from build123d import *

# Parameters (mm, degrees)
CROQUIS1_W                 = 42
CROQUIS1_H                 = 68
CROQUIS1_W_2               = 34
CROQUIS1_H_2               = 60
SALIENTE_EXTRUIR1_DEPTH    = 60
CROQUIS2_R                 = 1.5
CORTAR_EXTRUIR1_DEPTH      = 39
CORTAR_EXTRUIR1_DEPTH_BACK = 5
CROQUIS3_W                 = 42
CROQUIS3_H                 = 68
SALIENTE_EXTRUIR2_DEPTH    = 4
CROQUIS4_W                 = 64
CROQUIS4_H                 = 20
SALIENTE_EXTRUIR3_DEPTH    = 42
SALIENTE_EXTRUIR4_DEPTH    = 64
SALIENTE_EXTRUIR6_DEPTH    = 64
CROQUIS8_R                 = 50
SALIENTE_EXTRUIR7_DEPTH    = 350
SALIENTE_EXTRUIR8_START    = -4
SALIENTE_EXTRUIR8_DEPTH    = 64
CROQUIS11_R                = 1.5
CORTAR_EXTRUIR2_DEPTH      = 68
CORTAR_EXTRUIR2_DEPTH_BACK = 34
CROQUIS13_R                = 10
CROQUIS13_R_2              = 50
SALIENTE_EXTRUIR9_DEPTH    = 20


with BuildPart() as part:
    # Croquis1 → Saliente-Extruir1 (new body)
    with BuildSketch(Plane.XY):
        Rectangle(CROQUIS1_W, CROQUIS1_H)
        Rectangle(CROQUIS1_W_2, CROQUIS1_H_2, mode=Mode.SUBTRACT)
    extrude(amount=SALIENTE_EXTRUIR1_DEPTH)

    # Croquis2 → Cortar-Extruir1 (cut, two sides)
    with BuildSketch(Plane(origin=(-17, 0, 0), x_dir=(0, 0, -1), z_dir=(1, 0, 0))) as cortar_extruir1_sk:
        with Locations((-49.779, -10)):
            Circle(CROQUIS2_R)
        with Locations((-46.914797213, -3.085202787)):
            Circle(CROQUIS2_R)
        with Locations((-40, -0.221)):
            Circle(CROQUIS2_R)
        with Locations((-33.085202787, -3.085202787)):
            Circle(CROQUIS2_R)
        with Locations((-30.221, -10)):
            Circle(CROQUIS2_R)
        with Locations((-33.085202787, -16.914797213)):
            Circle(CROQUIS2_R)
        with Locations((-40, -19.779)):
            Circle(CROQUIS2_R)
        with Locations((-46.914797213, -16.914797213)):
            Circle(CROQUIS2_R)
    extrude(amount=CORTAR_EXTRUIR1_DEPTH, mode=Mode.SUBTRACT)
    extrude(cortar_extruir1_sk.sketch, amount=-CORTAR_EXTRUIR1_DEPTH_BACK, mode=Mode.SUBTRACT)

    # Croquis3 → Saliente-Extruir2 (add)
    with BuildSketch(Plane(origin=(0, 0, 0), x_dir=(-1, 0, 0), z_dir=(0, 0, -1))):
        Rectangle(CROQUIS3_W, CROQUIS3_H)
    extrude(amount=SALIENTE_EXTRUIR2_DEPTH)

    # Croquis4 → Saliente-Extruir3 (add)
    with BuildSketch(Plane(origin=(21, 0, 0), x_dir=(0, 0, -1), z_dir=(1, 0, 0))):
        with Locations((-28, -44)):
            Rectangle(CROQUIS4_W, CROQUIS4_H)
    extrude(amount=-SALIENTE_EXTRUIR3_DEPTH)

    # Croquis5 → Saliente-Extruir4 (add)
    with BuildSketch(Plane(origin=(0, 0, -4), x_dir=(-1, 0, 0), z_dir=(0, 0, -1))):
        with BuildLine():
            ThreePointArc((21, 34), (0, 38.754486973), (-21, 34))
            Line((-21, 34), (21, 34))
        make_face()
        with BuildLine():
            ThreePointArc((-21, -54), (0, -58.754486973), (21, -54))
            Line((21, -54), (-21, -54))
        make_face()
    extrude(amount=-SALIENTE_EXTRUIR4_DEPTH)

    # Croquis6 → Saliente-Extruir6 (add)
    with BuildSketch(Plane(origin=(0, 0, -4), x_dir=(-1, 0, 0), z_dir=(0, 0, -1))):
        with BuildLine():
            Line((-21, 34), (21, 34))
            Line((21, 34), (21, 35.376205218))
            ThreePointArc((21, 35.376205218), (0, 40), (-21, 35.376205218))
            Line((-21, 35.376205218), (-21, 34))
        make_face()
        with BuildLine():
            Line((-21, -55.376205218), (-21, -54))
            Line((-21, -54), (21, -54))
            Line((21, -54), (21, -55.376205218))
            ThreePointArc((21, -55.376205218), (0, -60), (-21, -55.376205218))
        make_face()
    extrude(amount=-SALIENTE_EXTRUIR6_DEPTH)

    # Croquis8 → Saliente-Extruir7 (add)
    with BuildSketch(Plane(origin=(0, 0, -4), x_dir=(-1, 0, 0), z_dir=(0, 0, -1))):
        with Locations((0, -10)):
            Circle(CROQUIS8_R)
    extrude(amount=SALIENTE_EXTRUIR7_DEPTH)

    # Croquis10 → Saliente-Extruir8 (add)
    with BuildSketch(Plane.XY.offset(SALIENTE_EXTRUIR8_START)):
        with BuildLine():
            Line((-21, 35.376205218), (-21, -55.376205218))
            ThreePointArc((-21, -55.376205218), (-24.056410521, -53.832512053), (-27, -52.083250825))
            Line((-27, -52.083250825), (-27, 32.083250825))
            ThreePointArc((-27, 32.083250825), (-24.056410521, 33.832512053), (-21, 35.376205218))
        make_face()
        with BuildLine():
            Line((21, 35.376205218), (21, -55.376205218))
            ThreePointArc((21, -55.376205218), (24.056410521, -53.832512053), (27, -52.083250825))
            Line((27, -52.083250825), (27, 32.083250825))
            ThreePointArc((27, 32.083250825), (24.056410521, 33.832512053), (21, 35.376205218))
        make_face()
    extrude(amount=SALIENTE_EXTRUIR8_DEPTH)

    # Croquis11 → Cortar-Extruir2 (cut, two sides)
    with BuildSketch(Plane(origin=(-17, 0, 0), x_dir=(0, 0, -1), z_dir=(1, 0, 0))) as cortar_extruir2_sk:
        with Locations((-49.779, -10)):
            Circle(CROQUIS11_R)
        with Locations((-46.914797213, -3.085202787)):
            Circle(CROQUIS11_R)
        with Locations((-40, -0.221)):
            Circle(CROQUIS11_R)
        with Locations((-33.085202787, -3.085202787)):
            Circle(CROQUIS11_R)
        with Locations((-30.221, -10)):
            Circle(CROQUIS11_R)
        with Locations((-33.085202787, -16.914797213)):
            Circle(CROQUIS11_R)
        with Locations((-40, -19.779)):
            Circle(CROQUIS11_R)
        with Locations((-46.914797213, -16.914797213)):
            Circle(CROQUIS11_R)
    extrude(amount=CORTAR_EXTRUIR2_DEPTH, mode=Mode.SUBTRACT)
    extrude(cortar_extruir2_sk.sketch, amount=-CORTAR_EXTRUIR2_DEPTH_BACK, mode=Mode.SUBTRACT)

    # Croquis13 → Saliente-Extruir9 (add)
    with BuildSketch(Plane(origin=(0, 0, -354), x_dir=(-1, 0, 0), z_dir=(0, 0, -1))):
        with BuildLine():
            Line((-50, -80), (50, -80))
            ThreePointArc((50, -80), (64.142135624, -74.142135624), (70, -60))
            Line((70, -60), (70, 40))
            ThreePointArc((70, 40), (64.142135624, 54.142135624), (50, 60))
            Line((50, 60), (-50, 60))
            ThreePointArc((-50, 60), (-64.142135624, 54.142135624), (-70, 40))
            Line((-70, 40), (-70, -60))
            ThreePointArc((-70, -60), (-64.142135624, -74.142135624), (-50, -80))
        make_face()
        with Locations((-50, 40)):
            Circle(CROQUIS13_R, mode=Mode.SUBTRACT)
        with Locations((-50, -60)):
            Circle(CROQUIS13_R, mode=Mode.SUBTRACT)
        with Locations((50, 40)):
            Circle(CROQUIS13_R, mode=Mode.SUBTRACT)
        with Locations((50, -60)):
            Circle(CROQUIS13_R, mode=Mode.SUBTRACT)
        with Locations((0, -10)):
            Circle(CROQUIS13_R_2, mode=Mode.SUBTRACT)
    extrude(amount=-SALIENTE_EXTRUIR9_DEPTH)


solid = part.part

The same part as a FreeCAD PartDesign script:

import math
import FreeCAD as App
import Part
import Sketcher

V = App.Vector
Q = App.Units.Quantity


def add_polygon(sketch, points):
    """Adds a closed chain of lines whose ends are joined by coincident constraints."""
    first, n = sketch.GeometryCount, len(points)
    for a, b in zip(points, points[1:] + points[:1]):
        sketch.addGeometry(Part.LineSegment(App.Vector(*a, 0), App.Vector(*b, 0)), False)
    for i in range(n):
        sketch.addConstraint(Sketcher.Constraint("Coincident", first + i, 2, first + (i + 1) % n, 1))

doc = App.newDocument("Part")
body = doc.addObject("PartDesign::Body", "Body")

# Sketch on XY plane
sketch1 = body.newObject("Sketcher::SketchObject", "Sketch")
sketch1.AttachmentSupport = (doc.getObject("XY_Plane"), [""])
sketch1.MapMode = "FlatFace"
add_polygon(sketch1, [(-21, 34), (-21, -34), (21, -34), (21, 34)])  # lines 0-3
add_polygon(sketch1, [(17, -30), (-17, -30), (-17, 30), (17, 30)])  # lines 4-7
sketch1.addConstraint([
    Sketcher.Constraint("Vertical", 0),
    Sketcher.Constraint("Horizontal", 1),
    Sketcher.Constraint("Vertical", 2),
    Sketcher.Constraint("Horizontal", 3),
    Sketcher.Constraint("Horizontal", 4),
    Sketcher.Constraint("Vertical", 5),
    Sketcher.Constraint("Horizontal", 6),
    Sketcher.Constraint("Vertical", 7),
    Sketcher.Constraint("Symmetric", 0, 2, 2, 2, -1, 1),
    Sketcher.Constraint("Symmetric", 4, 2, 6, 2, -1, 1),
    Sketcher.Constraint("DistanceX", 1, 1, 1, 2, Q("42 mm")),
    Sketcher.Constraint("DistanceX", 4, 2, 4, 1, Q("34 mm")),
    Sketcher.Constraint("DistanceY", 0, 2, 0, 1, Q("68 mm")),
    Sketcher.Constraint("DistanceY", 5, 1, 5, 2, Q("60 mm")),
])
pad1 = body.newObject("PartDesign::Pad", "Pad")
pad1.Profile = sketch1
pad1.Length = 60

# Sketch on YZ plane
sketch2 = body.newObject("Sketcher::SketchObject", "Sketch001")
sketch2.AttachmentSupport = (doc.getObject("YZ_Plane"), [""])
sketch2.MapMode = "FlatFace"
sketch2.AttachmentOffset = App.Placement(V(0, 0, -17), App.Rotation())
sketch2.addGeometry([
    Part.Circle(V(-10, 49.8, 0), V(0, 0, 1), 1.5),  # 0
    Part.Circle(V(-3.1, 46.9, 0), V(0, 0, 1), 1.5),  # 1
    Part.Circle(V(-0.2, 40, 0), V(0, 0, 1), 1.5),  # 2
    Part.Circle(V(-3.1, 33.1, 0), V(0, 0, 1), 1.5),  # 3
    Part.Circle(V(-10, 30.2, 0), V(0, 0, 1), 1.5),  # 4
    Part.Circle(V(-16.9, 33.1, 0), V(0, 0, 1), 1.5),  # 5
    Part.Circle(V(-19.8, 40, 0), V(0, 0, 1), 1.5),  # 6
    Part.Circle(V(-16.9, 46.9, 0), V(0, 0, 1), 1.5),  # 7
], False)
sketch2.addConstraint([
    Sketcher.Constraint("Equal", 0, 1),
    Sketcher.Constraint("Equal", 1, 2),
    Sketcher.Constraint("Equal", 2, 3),
    Sketcher.Constraint("Equal", 3, 4),
    Sketcher.Constraint("Equal", 4, 5),
    Sketcher.Constraint("Equal", 5, 6),
    Sketcher.Constraint("Equal", 6, 7),
    Sketcher.Constraint("Horizontal", 3, 3, 5, 3),
    Sketcher.Constraint("Horizontal", 2, 3, 6, 3),
    Sketcher.Constraint("Horizontal", 1, 3, 7, 3),
    Sketcher.Constraint("Vertical", 1, 3, 3, 3),
    Sketcher.Constraint("Vertical", 0, 3, 4, 3),
    Sketcher.Constraint("Vertical", 5, 3, 7, 3),
    Sketcher.Constraint("Diameter", 0, Q("3 mm")),
    Sketcher.Constraint("DistanceX", 0, 3, -1, 1, Q("10 mm")),
    Sketcher.Constraint("DistanceY", -1, 1, 2, 3, Q("40 mm")),
    Sketcher.Constraint("DistanceY", -1, 1, 0, 3, Q("49.779 mm")),
    Sketcher.Constraint("DistanceX", 2, 3, -1, 1, Q("0.221 mm")),
    Sketcher.Constraint("DistanceY", -1, 1, 4, 3, Q("30.221 mm")),
    Sketcher.Constraint("DistanceX", 6, 3, -1, 1, Q("19.779 mm")),
    Sketcher.Constraint("DistanceX", 1, 3, -1, 1, Q("3.085203 mm")),
    Sketcher.Constraint("DistanceY", -1, 1, 1, 3, Q("46.914797 mm")),
    Sketcher.Constraint("DistanceY", -1, 1, 3, 3, Q("33.085203 mm")),
    Sketcher.Constraint("DistanceX", 5, 3, -1, 1, Q("16.914797 mm")),
])
pocket1 = body.newObject("PartDesign::Pocket", "Pocket")
pocket1.Profile = sketch2
pocket1.Type = "ThroughAll"
pocket1.Midplane = True

# Sketch on XY plane
sketch3 = body.newObject("Sketcher::SketchObject", "Sketch002")
sketch3.AttachmentSupport = (doc.getObject("XY_Plane"), [""])
sketch3.MapMode = "FlatFace"
add_polygon(sketch3, [(21, 34), (21, -34), (-21, -34), (-21, 34)])  # lines 0-3
sketch3.addConstraint([
    Sketcher.Constraint("Vertical", 0),
    Sketcher.Constraint("Horizontal", 1),
    Sketcher.Constraint("Vertical", 2),
    Sketcher.Constraint("Horizontal", 3),
    Sketcher.Constraint("Symmetric", 0, 2, 2, 2, -1, 1),
    Sketcher.Constraint("DistanceX", 1, 2, 1, 1, Q("42 mm")),
    Sketcher.Constraint("DistanceY", 0, 2, 0, 1, Q("68 mm")),
])
pad2 = body.newObject("PartDesign::Pad", "Pad001")
pad2.Profile = sketch3
pad2.Length = 4
pad2.Reversed = True

# Sketch on YZ plane
sketch4 = body.newObject("Sketcher::SketchObject", "Sketch003")
sketch4.AttachmentSupport = (doc.getObject("YZ_Plane"), [""])
sketch4.MapMode = "FlatFace"
sketch4.AttachmentOffset = App.Placement(V(0, 0, 21), App.Rotation())
add_polygon(sketch4, [(-34, 60), (-54, 60), (-54, -4), (-34, -4)])  # lines 0-3
sketch4.addConstraint([
    Sketcher.Constraint("Horizontal", 0),
    Sketcher.Constraint("Vertical", 1),
    Sketcher.Constraint("Horizontal", 2),
    Sketcher.Constraint("Vertical", 3),
    Sketcher.Constraint("DistanceX", 0, 2, 0, 1, Q("20 mm")),
    Sketcher.Constraint("DistanceY", 1, 2, 1, 1, Q("64 mm")),
    Sketcher.Constraint("DistanceX", 0, 2, -1, 1, Q("54 mm")),
    Sketcher.Constraint("DistanceY", -1, 1, 0, 2, Q("60 mm")),
])
pad3 = body.newObject("PartDesign::Pad", "Pad002")
pad3.Profile = sketch4
pad3.Length = 42
pad3.Reversed = True

# Sketch on XY plane
sketch5 = body.newObject("Sketcher::SketchObject", "Sketch004")
sketch5.AttachmentSupport = (doc.getObject("XY_Plane"), [""])
sketch5.MapMode = "FlatFace"
sketch5.AttachmentOffset = App.Placement(V(0, 0, -4), App.Rotation())
sketch5.addGeometry([
    Part.ArcOfCircle(Part.Circle(V(0, -10, 0), V(0, 0, 1), 49), math.radians(64), math.radians(116)),
    Part.LineSegment(V(21, 34, 0), V(-21, 34, 0)),
    Part.ArcOfCircle(Part.Circle(V(0, -10, 0), V(0, 0, 1), 49), math.radians(-116), math.radians(-64)),
    Part.LineSegment(V(-21, -54, 0), V(21, -54, 0)),
], False)
sketch5.addConstraint([
    Sketcher.Constraint("Coincident", 0, 1, 1, 1),
    Sketcher.Constraint("Coincident", 1, 2, 0, 2),
    Sketcher.Constraint("Coincident", 2, 1, 3, 1),
    Sketcher.Constraint("Coincident", 3, 2, 2, 2),
    Sketcher.Constraint("Horizontal", 1),
    Sketcher.Constraint("Horizontal", 3),
    Sketcher.Constraint("Coincident", 2, 3, 0, 3),
    Sketcher.Constraint("Equal", 0, 2),
    Sketcher.Constraint("PointOnObject", 0, 3, -2),
    Sketcher.Constraint("Vertical", 1, 2, 2, 1),
    Sketcher.Constraint("DistanceX", 1, 2, 1, 1, Q("42 mm")),
    Sketcher.Constraint("DistanceY", 0, 3, -1, 1, Q("10 mm")),
    Sketcher.Constraint("DistanceY", -1, 1, 0, 1, Q("34 mm")),
])
pad4 = body.newObject("PartDesign::Pad", "Pad003")
pad4.Profile = sketch5
pad4.Length = 64

# Sketch on XY plane
sketch6 = body.newObject("Sketcher::SketchObject", "Sketch005")
sketch6.AttachmentSupport = (doc.getObject("XY_Plane"), [""])
sketch6.MapMode = "FlatFace"
sketch6.AttachmentOffset = App.Placement(V(0, 0, -4), App.Rotation())
sketch6.addGeometry([
    Part.LineSegment(V(21, 34, 0), V(-21, 34, 0)),  # 0
    Part.LineSegment(V(-21, 34, 0), V(-21, 35.4, 0)),  # 1
    Part.ArcOfCircle(Part.Circle(V(0, -10, 0), V(0, 0, 1), 50), math.radians(65), math.radians(115)),  # 2
    Part.LineSegment(V(21, 35.4, 0), V(21, 34, 0)),  # 3
    Part.LineSegment(V(21, -54, 0), V(21, -55.4, 0)),  # 4
    Part.ArcOfCircle(Part.Circle(V(0, -10, 0), V(0, 0, 1), 50), math.radians(-115), math.radians(-65)),  # 5
    Part.LineSegment(V(-21, -55.4, 0), V(-21, -54, 0)),  # 6
    Part.LineSegment(V(-21, -54, 0), V(21, -54, 0)),  # 7
], False)
sketch6.addConstraint([
    Sketcher.Constraint("Coincident", 0, 2, 1, 1),
    Sketcher.Constraint("Coincident", 1, 2, 2, 2),
    Sketcher.Constraint("Coincident", 2, 1, 3, 1),
    Sketcher.Constraint("Coincident", 3, 2, 0, 1),
    Sketcher.Constraint("Coincident", 4, 2, 5, 2),
    Sketcher.Constraint("Coincident", 5, 1, 6, 1),
    Sketcher.Constraint("Coincident", 6, 2, 7, 1),
    Sketcher.Constraint("Coincident", 7, 2, 4, 1),
    Sketcher.Constraint("Horizontal", 0),
    Sketcher.Constraint("Vertical", 1),
    Sketcher.Constraint("Vertical", 3),
    Sketcher.Constraint("Vertical", 4),
    Sketcher.Constraint("Vertical", 6),
    Sketcher.Constraint("Horizontal", 7),
    Sketcher.Constraint("Coincident", 5, 3, 2, 3),
    Sketcher.Constraint("Equal", 2, 5),
    Sketcher.Constraint("Symmetric", 1, 2, 2, 1, -2),
    Sketcher.Constraint("Horizontal", 4, 2, 5, 1),
    Sketcher.Constraint("Vertical", 3, 2, 4, 2),
    Sketcher.Constraint("Equal", 3, 4),
    Sketcher.Constraint("Radius", 2, Q("50 mm")),
    Sketcher.Constraint("DistanceX", 0, 2, 0, 1, Q("42 mm")),
    Sketcher.Constraint("DistanceY", 2, 3, -1, 1, Q("10 mm")),
    Sketcher.Constraint("DistanceY", -1, 1, 0, 2, Q("34 mm")),
])
pad5 = body.newObject("PartDesign::Pad", "Pad004")
pad5.Profile = sketch6
pad5.Length = 64

# Sketch on XY plane
sketch7 = body.newObject("Sketcher::SketchObject", "Sketch006")
sketch7.AttachmentSupport = (doc.getObject("XY_Plane"), [""])
sketch7.MapMode = "FlatFace"
sketch7.AttachmentOffset = App.Placement(V(0, 0, -4), App.Rotation())
sketch7.addGeometry(Part.Circle(V(0, -10, 0), V(0, 0, 1), 50), False)
sketch7.addConstraint([
    Sketcher.Constraint("PointOnObject", 0, 3, -2),
    Sketcher.Constraint("Diameter", 0, Q("100 mm")),
    Sketcher.Constraint("DistanceY", 0, 3, -1, 1, Q("10 mm")),
])
pad6 = body.newObject("PartDesign::Pad", "Pad005")
pad6.Profile = sketch7
pad6.Length = 350
pad6.Reversed = True

# Sketch on XY plane
sketch8 = body.newObject("Sketcher::SketchObject", "Sketch007")
sketch8.AttachmentSupport = (doc.getObject("XY_Plane"), [""])
sketch8.MapMode = "FlatFace"
sketch8.AttachmentOffset = App.Placement(V(0, 0, -4), App.Rotation())
sketch8.addGeometry([
    Part.LineSegment(V(-21, -55, 0), V(-21, 35, 0)),  # 0
    Part.ArcOfCircle(Part.Circle(V(0, -10, 0), V(0, 0, 1), 50), math.radians(114.83), math.radians(122.68)),  # 1
    Part.LineSegment(V(-27, 32, 0), V(-27, -52, 0)),  # 2
    Part.ArcOfCircle(Part.Circle(V(0, -10, 0), V(0, 0, 1), 50), math.radians(-122.68), math.radians(-114.83)),  # 3
    Part.LineSegment(V(21, 35, 0), V(21, -55, 0)),  # 4
    Part.ArcOfCircle(Part.Circle(V(0, -10, 0), V(0, 0, 1), 50), math.radians(-65.17), math.radians(-57.32)),  # 5
    Part.LineSegment(V(27, -52, 0), V(27, 32, 0)),  # 6
    Part.ArcOfCircle(Part.Circle(V(0, -10, 0), V(0, 0, 1), 50), math.radians(57.32), math.radians(65.17)),  # 7
], False)
sketch8.addConstraint([
    Sketcher.Constraint("Coincident", 0, 2, 1, 1),
    Sketcher.Constraint("Coincident", 1, 2, 2, 1),
    Sketcher.Constraint("Coincident", 2, 2, 3, 1),
    Sketcher.Constraint("Coincident", 3, 2, 0, 1),
    Sketcher.Constraint("Coincident", 4, 2, 5, 1),
    Sketcher.Constraint("Coincident", 5, 2, 6, 1),
    Sketcher.Constraint("Coincident", 6, 2, 7, 1),
    Sketcher.Constraint("Coincident", 7, 2, 4, 1),
    Sketcher.Constraint("Vertical", 0),
    Sketcher.Constraint("Vertical", 2),
    Sketcher.Constraint("Vertical", 4),
    Sketcher.Constraint("Vertical", 6),
    Sketcher.Constraint("Coincident", 3, 3, 1, 3),
    Sketcher.Constraint("Coincident", 5, 3, 1, 3),
    Sketcher.Constraint("Coincident", 7, 3, 1, 3),
    Sketcher.Constraint("Equal", 1, 3),
    Sketcher.Constraint("Equal", 3, 5),
    Sketcher.Constraint("Equal", 5, 7),
    Sketcher.Constraint("Symmetric", 3, 2, 4, 2, -2),
    Sketcher.Constraint("Horizontal", 2, 2, 5, 2),
    Sketcher.Constraint("Radius", 1, Q("50 mm")),
    Sketcher.Constraint("DistanceY", 1, 3, -1, 1, Q("10 mm")),
    Sketcher.Constraint("DistanceX", 0, 2, -1, 1, Q("21 mm")),
    Sketcher.Constraint("DistanceX", 1, 2, -1, 1, Q("27 mm")),
])
pad7 = body.newObject("PartDesign::Pad", "Pad006")
pad7.Profile = sketch8
pad7.Length = 64

# Sketch on YZ plane
sketch9 = body.newObject("Sketcher::SketchObject", "Sketch008")
sketch9.AttachmentSupport = (doc.getObject("YZ_Plane"), [""])
sketch9.MapMode = "FlatFace"
sketch9.AttachmentOffset = App.Placement(V(0, 0, -17), App.Rotation())
sketch9.addGeometry([
    Part.Circle(V(-10, 49.8, 0), V(0, 0, 1), 1.5),  # 0
    Part.Circle(V(-3.1, 46.9, 0), V(0, 0, 1), 1.5),  # 1
    Part.Circle(V(-0.2, 40, 0), V(0, 0, 1), 1.5),  # 2
    Part.Circle(V(-3.1, 33.1, 0), V(0, 0, 1), 1.5),  # 3
    Part.Circle(V(-10, 30.2, 0), V(0, 0, 1), 1.5),  # 4
    Part.Circle(V(-16.9, 33.1, 0), V(0, 0, 1), 1.5),  # 5
    Part.Circle(V(-19.8, 40, 0), V(0, 0, 1), 1.5),  # 6
    Part.Circle(V(-16.9, 46.9, 0), V(0, 0, 1), 1.5),  # 7
], False)
sketch9.addConstraint([
    Sketcher.Constraint("Equal", 0, 1),
    Sketcher.Constraint("Equal", 1, 2),
    Sketcher.Constraint("Equal", 2, 3),
    Sketcher.Constraint("Equal", 3, 4),
    Sketcher.Constraint("Equal", 4, 5),
    Sketcher.Constraint("Equal", 5, 6),
    Sketcher.Constraint("Equal", 6, 7),
    Sketcher.Constraint("Horizontal", 3, 3, 5, 3),
    Sketcher.Constraint("Horizontal", 2, 3, 6, 3),
    Sketcher.Constraint("Horizontal", 1, 3, 7, 3),
    Sketcher.Constraint("Vertical", 1, 3, 3, 3),
    Sketcher.Constraint("Vertical", 0, 3, 4, 3),
    Sketcher.Constraint("Vertical", 5, 3, 7, 3),
    Sketcher.Constraint("Diameter", 0, Q("3 mm")),
    Sketcher.Constraint("DistanceX", 0, 3, -1, 1, Q("10 mm")),
    Sketcher.Constraint("DistanceY", -1, 1, 2, 3, Q("40 mm")),
    Sketcher.Constraint("DistanceY", -1, 1, 0, 3, Q("49.779 mm")),
    Sketcher.Constraint("DistanceX", 2, 3, -1, 1, Q("0.221 mm")),
    Sketcher.Constraint("DistanceY", -1, 1, 4, 3, Q("30.221 mm")),
    Sketcher.Constraint("DistanceX", 6, 3, -1, 1, Q("19.779 mm")),
    Sketcher.Constraint("DistanceX", 1, 3, -1, 1, Q("3.085203 mm")),
    Sketcher.Constraint("DistanceY", -1, 1, 1, 3, Q("46.914797 mm")),
    Sketcher.Constraint("DistanceY", -1, 1, 3, 3, Q("33.085203 mm")),
    Sketcher.Constraint("DistanceX", 5, 3, -1, 1, Q("16.914797 mm")),
])
pocket2 = body.newObject("PartDesign::Pocket", "Pocket001")
pocket2.Profile = sketch9
pocket2.Type = "ThroughAll"
pocket2.Midplane = True

# Sketch on XY plane
sketch10 = body.newObject("Sketcher::SketchObject", "Sketch009")
sketch10.AttachmentSupport = (doc.getObject("XY_Plane"), [""])
sketch10.MapMode = "FlatFace"
sketch10.AttachmentOffset = App.Placement(V(0, 0, -354), App.Rotation())
sketch10.addGeometry([
    Part.LineSegment(V(50, -80, 0), V(-50, -80, 0)),  # 0
    Part.ArcOfCircle(Part.Circle(V(-50, -60, 0), V(0, 0, 1), 20), math.radians(180), math.radians(270)),  # 1
    Part.LineSegment(V(-70, -60, 0), V(-70, 40, 0)),  # 2
    Part.ArcOfCircle(Part.Circle(V(-50, 40, 0), V(0, 0, 1), 20), math.radians(90), math.radians(180)),  # 3
    Part.LineSegment(V(-50, 60, 0), V(50, 60, 0)),  # 4
    Part.ArcOfCircle(Part.Circle(V(50, 40, 0), V(0, 0, 1), 20), math.radians(0), math.radians(90)),  # 5
    Part.LineSegment(V(70, 40, 0), V(70, -60, 0)),  # 6
    Part.ArcOfCircle(Part.Circle(V(50, -60, 0), V(0, 0, 1), 20), math.radians(-90), math.radians(0)),  # 7
    Part.Circle(V(50, -60, 0), V(0, 0, 1), 10),  # 8
    Part.Circle(V(-50, -60, 0), V(0, 0, 1), 10),  # 9
    Part.Circle(V(50, 40, 0), V(0, 0, 1), 10),  # 10
    Part.Circle(V(0, -10, 0), V(0, 0, 1), 50),  # 11
    Part.Circle(V(-50, 40, 0), V(0, 0, 1), 10),  # 12
], False)
sketch10.addConstraint([
    Sketcher.Constraint("Tangent", 0, 2, 1, 2),
    Sketcher.Constraint("Tangent", 1, 1, 2, 1),
    Sketcher.Constraint("Tangent", 2, 2, 3, 2),
    Sketcher.Constraint("Tangent", 3, 1, 4, 1),
    Sketcher.Constraint("Tangent", 4, 2, 5, 2),
    Sketcher.Constraint("Tangent", 5, 1, 6, 1),
    Sketcher.Constraint("Tangent", 6, 2, 7, 2),
    Sketcher.Constraint("Tangent", 7, 1, 0, 1),
    Sketcher.Constraint("Horizontal", 0),
    Sketcher.Constraint("Vertical", 2),
    Sketcher.Constraint("Horizontal", 4),
    Sketcher.Constraint("Vertical", 6),
    Sketcher.Constraint("Coincident", 8, 3, 7, 3),
    Sketcher.Constraint("Coincident", 9, 3, 1, 3),
    Sketcher.Constraint("Coincident", 10, 3, 5, 3),
    Sketcher.Constraint("Coincident", 12, 3, 3, 3),
    Sketcher.Constraint("Equal", 1, 3),
    Sketcher.Constraint("Equal", 3, 5),
    Sketcher.Constraint("Equal", 5, 7),
    Sketcher.Constraint("Equal", 8, 9),
    Sketcher.Constraint("Equal", 9, 10),
    Sketcher.Constraint("Equal", 10, 12),
    Sketcher.Constraint("PointOnObject", 11, 3, -2),
    Sketcher.Constraint("Equal", 4, 2),
    Sketcher.Constraint("Diameter", 8, Q("20 mm")),
    Sketcher.Constraint("Diameter", 11, Q("100 mm")),
    Sketcher.Constraint("Radius", 1, Q("20 mm")),
    Sketcher.Constraint("DistanceX", 0, 2, 0, 1, Q("100 mm")),
    Sketcher.Constraint("DistanceX", 1, 3, -1, 1, Q("50 mm")),
    Sketcher.Constraint("DistanceY", 1, 3, -1, 1, Q("60 mm")),
    Sketcher.Constraint("DistanceY", 11, 3, -1, 1, Q("10 mm")),
])
pad8 = body.newObject("PartDesign::Pad", "Pad007")
pad8.Profile = sketch10
pad8.Length = 20

doc.recompute()
